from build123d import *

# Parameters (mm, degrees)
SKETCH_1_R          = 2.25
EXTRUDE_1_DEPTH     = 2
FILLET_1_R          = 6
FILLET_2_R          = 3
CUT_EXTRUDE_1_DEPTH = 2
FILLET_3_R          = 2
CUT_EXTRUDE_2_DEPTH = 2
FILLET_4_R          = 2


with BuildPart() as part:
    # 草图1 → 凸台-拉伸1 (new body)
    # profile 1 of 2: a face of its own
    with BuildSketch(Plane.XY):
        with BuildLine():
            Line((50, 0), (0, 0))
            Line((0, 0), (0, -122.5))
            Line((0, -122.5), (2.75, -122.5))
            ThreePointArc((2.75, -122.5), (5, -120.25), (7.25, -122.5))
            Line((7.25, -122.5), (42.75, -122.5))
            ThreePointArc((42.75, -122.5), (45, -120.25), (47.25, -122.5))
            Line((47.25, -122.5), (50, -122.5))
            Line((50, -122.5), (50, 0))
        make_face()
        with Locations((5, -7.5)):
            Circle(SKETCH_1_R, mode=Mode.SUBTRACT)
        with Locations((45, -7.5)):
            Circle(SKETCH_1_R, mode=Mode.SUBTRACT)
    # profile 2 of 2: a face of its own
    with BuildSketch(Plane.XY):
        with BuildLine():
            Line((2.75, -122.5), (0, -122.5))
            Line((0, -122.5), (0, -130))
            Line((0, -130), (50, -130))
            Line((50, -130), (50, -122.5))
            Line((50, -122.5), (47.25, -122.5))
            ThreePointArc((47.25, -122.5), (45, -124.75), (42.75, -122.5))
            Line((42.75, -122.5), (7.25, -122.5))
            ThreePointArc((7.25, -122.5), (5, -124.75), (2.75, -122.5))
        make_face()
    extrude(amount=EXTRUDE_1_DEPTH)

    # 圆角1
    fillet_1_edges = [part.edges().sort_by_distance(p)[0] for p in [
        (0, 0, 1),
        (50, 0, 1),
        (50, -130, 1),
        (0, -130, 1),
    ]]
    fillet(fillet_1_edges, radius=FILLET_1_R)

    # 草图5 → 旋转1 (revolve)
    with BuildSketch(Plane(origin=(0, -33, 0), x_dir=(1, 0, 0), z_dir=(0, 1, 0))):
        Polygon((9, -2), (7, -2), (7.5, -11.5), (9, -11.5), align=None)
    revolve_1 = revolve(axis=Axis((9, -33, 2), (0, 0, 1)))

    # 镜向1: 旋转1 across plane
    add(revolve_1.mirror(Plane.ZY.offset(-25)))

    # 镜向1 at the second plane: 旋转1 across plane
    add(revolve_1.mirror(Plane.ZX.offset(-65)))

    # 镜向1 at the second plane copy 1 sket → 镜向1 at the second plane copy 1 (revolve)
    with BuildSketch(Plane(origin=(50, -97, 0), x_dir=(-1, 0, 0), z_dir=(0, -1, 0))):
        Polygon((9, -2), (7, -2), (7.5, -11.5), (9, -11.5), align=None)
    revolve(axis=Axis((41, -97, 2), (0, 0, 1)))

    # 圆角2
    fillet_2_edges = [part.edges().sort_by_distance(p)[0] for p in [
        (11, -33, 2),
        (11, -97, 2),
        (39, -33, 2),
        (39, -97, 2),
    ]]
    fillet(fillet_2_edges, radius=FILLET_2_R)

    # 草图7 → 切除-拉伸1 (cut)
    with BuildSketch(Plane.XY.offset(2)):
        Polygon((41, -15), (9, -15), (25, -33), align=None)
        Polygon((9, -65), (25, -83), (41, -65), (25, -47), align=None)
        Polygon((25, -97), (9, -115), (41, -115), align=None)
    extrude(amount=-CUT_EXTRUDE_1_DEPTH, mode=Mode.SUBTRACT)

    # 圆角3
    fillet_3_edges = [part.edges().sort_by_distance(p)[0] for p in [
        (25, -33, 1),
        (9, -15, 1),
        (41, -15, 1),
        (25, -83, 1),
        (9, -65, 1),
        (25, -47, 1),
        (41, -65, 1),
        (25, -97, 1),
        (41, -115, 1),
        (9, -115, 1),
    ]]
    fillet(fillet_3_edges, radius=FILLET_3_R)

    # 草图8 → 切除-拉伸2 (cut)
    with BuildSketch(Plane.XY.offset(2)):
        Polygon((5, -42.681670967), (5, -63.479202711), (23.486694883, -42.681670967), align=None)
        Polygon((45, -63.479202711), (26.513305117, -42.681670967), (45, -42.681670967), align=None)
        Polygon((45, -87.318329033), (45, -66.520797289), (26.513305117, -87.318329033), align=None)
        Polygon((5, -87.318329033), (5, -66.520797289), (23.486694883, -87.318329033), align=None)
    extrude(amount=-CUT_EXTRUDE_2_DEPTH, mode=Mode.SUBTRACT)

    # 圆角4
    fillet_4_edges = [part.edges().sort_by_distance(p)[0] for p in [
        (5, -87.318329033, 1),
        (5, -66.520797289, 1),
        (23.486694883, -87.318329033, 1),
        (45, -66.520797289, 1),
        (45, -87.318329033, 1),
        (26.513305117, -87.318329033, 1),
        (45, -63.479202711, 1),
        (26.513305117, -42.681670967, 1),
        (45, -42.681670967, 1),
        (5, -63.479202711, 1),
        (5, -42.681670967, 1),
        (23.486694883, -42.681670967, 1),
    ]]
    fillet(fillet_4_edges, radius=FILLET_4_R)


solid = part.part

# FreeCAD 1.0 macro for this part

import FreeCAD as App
import Part
import Sketcher


def edges_at(feature, points):
    """Names of the edges that pass closest to the given points."""
    edges = feature.Shape.Edges
    near = lambda p: min(range(len(edges)), key=lambda i: edges[i].distToShape(Part.Vertex(*p))[0])
    return sorted({f"Edge{near(p) + 1}" for p in points})

doc = App.newDocument("Part")
body = doc.addObject("PartDesign::Body", "Body")

sketch1 = body.newObject("Sketcher::SketchObject", "Sketch")
sketch1.AttachmentSupport = (doc.getObject("XY_Plane"), [""])
sketch1.MapMode = "FlatFace"
sketch1.addGeometry(Part.LineSegment(App.Vector(50, 0, 0), App.Vector(0, 0, 0)), False)
sketch1.addGeometry(Part.LineSegment(App.Vector(0, 0, 0), App.Vector(0, -130, 0)), False)
sketch1.addGeometry(Part.LineSegment(App.Vector(0, -130, 0), App.Vector(50, -130, 0)), False)
sketch1.addGeometry(Part.LineSegment(App.Vector(50, -130, 0), App.Vector(50, 0, 0)), False)
sketch1.addGeometry(Part.Circle(App.Vector(45, -122.5, 0), App.Vector(0, 0, 1), 2.25), False)
sketch1.addGeometry(Part.Circle(App.Vector(5, -122.5, 0), App.Vector(0, 0, 1), 2.25), False)
sketch1.addGeometry(Part.Circle(App.Vector(5, -7.5, 0), App.Vector(0, 0, 1), 2.25), False)
sketch1.addGeometry(Part.Circle(App.Vector(45, -7.5, 0), App.Vector(0, 0, 1), 2.25), False)
sketch1.addConstraint(Sketcher.Constraint("Coincident", 0, 2, 1, 1))
sketch1.addConstraint(Sketcher.Constraint("Coincident", 1, 2, 2, 1))
sketch1.addConstraint(Sketcher.Constraint("Coincident", 2, 2, 3, 1))
sketch1.addConstraint(Sketcher.Constraint("Coincident", 3, 2, 0, 1))
sketch1.addConstraint(Sketcher.Constraint("Horizontal", 0))
sketch1.addConstraint(Sketcher.Constraint("Vertical", 1))
sketch1.addConstraint(Sketcher.Constraint("Horizontal", 2))
sketch1.addConstraint(Sketcher.Constraint("Vertical", 3))
sketch1.addConstraint(Sketcher.Constraint("Coincident", 0, 2, -1, 1))
sketch1.addConstraint(Sketcher.Constraint("Equal", 4, 5))
sketch1.addConstraint(Sketcher.Constraint("Equal", 5, 6))
sketch1.addConstraint(Sketcher.Constraint("Equal", 6, 7))
sketch1.addConstraint(Sketcher.Constraint("Horizontal", 4, 3, 5, 3))
sketch1.addConstraint(Sketcher.Constraint("Horizontal", 6, 3, 7, 3))
sketch1.addConstraint(Sketcher.Constraint("Vertical", 5, 3, 6, 3))
sketch1.addConstraint(Sketcher.Constraint("Vertical", 4, 3, 7, 3))
sketch1.addConstraint(Sketcher.Constraint("Diameter", 4, 4.5))
sketch1.addConstraint(Sketcher.Constraint("DistanceX", 0, 2, 0, 1, 50.0))
sketch1.addConstraint(Sketcher.Constraint("DistanceY", 1, 2, 1, 1, 130.0))
sketch1.addConstraint(Sketcher.Constraint("DistanceX", -1, 1, 4, 3, 45.0))
sketch1.addConstraint(Sketcher.Constraint("DistanceX", -1, 1, 5, 3, 5.0))
sketch1.addConstraint(Sketcher.Constraint("DistanceY", 5, 3, 6, 3, 115.0))
sketch1.addConstraint(Sketcher.Constraint("DistanceY", 4, 3, -1, 1, 122.5))
pad1 = body.newObject("PartDesign::Pad", "Pad")
pad1.Profile = sketch1
pad1.Length = 2
doc.recompute()

fillet = body.newObject("PartDesign::Fillet", "Fillet")
fillet.Base = (pad1, edges_at(pad1, [
    (0, 0, 1),
    (50, 0, 1),
    (50, -130, 1),
    (0, -130, 1),
]))
fillet.Radius = 6

sketch2 = body.newObject("Sketcher::SketchObject", "Sketch001")
sketch2.AttachmentSupport = (doc.getObject("XZ_Plane"), [""])
sketch2.MapMode = "FlatFace"
sketch2.AttachmentOffset = App.Placement(App.Vector(0, 0, 33), App.Rotation())
sketch2.addGeometry(Part.LineSegment(App.Vector(9, 2, 0), App.Vector(7, 2, 0)), False)
sketch2.addGeometry(Part.LineSegment(App.Vector(7, 2, 0), App.Vector(7.5, 11.5, 0)), False)
sketch2.addGeometry(Part.LineSegment(App.Vector(7.5, 11.5, 0), App.Vector(9, 11.5, 0)), False)
sketch2.addGeometry(Part.LineSegment(App.Vector(9, 11.5, 0), App.Vector(9, 2, 0)), False)
sketch2.addGeometry(Part.LineSegment(App.Vector(9, 2, 0), App.Vector(9, 11.5, 0)), True)
sketch2.addConstraint(Sketcher.Constraint("Coincident", 0, 2, 1, 1))
sketch2.addConstraint(Sketcher.Constraint("Coincident", 1, 2, 2, 1))
sketch2.addConstraint(Sketcher.Constraint("Coincident", 2, 2, 3, 1))
sketch2.addConstraint(Sketcher.Constraint("Coincident", 3, 2, 0, 1))
sketch2.addConstraint(Sketcher.Constraint("Horizontal", 0))
sketch2.addConstraint(Sketcher.Constraint("Horizontal", 2))
sketch2.addConstraint(Sketcher.Constraint("Vertical", 3))
sketch2.addConstraint(Sketcher.Constraint("Vertical", 4))
sketch2.addConstraint(Sketcher.Constraint("Coincident", 4, 1, 3, 2))
sketch2.addConstraint(Sketcher.Constraint("Horizontal", 1, 2, 4, 2))
sketch2.addConstraint(Sketcher.Constraint("DistanceX", 0, 2, 0, 1, 2.0))
sketch2.addConstraint(Sketcher.Constraint("DistanceX", 2, 1, 2, 2, 1.5))
sketch2.addConstraint(Sketcher.Constraint("DistanceY", 3, 2, 3, 1, 9.5))
sketch2.addConstraint(Sketcher.Constraint("DistanceX", -1, 1, 0, 2, 7.0))
sketch2.addConstraint(Sketcher.Constraint("DistanceY", -1, 1, 0, 2, 2.0))
revolution = body.newObject("PartDesign::Revolution", "Revolution")
revolution.Profile = sketch2
revolution.ReferenceAxis = (sketch2, ["Axis0"])
revolution.Angle = 360
doc.recompute()

datumplane = body.newObject("PartDesign::Plane", "DatumPlane")
datumplane.AttachmentSupport = (doc.getObject("YZ_Plane"), [""])
datumplane.MapMode = "FlatFace"
datumplane.AttachmentOffset = App.Placement(App.Vector(0, 0, 25), App.Rotation())
mirrored = body.newObject("PartDesign::Mirrored", "Mirrored")
mirrored.Originals = [revolution]
mirrored.MirrorPlane = (datumplane, [""])
body.Tip = mirrored
doc.recompute()

datumplane2 = body.newObject("PartDesign::Plane", "DatumPlane001")
datumplane2.AttachmentSupport = (doc.getObject("XZ_Plane"), [""])
datumplane2.MapMode = "FlatFace"
datumplane2.AttachmentOffset = App.Placement(App.Vector(0, 0, 65), App.Rotation())
mirrored2 = body.newObject("PartDesign::Mirrored", "Mirrored001")
mirrored2.Originals = [revolution]
mirrored2.MirrorPlane = (datumplane2, [""])
body.Tip = mirrored2

sketch3 = body.newObject("Sketcher::SketchObject", "Sketch002")
sketch3.AttachmentSupport = (doc.getObject("XZ_Plane"), [""])
sketch3.MapMode = "FlatFace"
sketch3.AttachmentOffset = App.Placement(App.Vector(0, 0, 97), App.Rotation())
sketch3.addGeometry(Part.LineSegment(App.Vector(41, 2, 0), App.Vector(43, 2, 0)), False)
sketch3.addGeometry(Part.LineSegment(App.Vector(43, 2, 0), App.Vector(42.5, 11.5, 0)), False)
sketch3.addGeometry(Part.LineSegment(App.Vector(42.5, 11.5, 0), App.Vector(41, 11.5, 0)), False)
sketch3.addGeometry(Part.LineSegment(App.Vector(41, 11.5, 0), App.Vector(41, 2, 0)), False)
sketch3.addGeometry(Part.LineSegment(App.Vector(41, 2, 0), App.Vector(41, 11.5, 0)), True)
sketch3.addConstraint(Sketcher.Constraint("Coincident", 0, 2, 1, 1))
sketch3.addConstraint(Sketcher.Constraint("Coincident", 1, 2, 2, 1))
sketch3.addConstraint(Sketcher.Constraint("Coincident", 2, 2, 3, 1))
sketch3.addConstraint(Sketcher.Constraint("Coincident", 3, 2, 0, 1))
sketch3.addConstraint(Sketcher.Constraint("Horizontal", 0))
sketch3.addConstraint(Sketcher.Constraint("Horizontal", 2))
sketch3.addConstraint(Sketcher.Constraint("Vertical", 3))
sketch3.addConstraint(Sketcher.Constraint("Vertical", 4))
sketch3.addConstraint(Sketcher.Constraint("Coincident", 4, 1, 3, 2))
sketch3.addConstraint(Sketcher.Constraint("Horizontal", 1, 2, 4, 2))
sketch3.addConstraint(Sketcher.Constraint("DistanceX", 0, 1, 0, 2, 2.0))
sketch3.addConstraint(Sketcher.Constraint("DistanceX", 2, 2, 2, 1, 1.5))
sketch3.addConstraint(Sketcher.Constraint("DistanceY", 3, 2, 3, 1, 9.5))
sketch3.addConstraint(Sketcher.Constraint("DistanceX", -1, 1, 0, 2, 43.0))
sketch3.addConstraint(Sketcher.Constraint("DistanceY", -1, 1, 0, 2, 2.0))
revolution2 = body.newObject("PartDesign::Revolution", "Revolution001")
revolution2.Profile = sketch3
revolution2.ReferenceAxis = (sketch3, ["Axis0"])
revolution2.Angle = 360
doc.recompute()

fillet2 = body.newObject("PartDesign::Fillet", "Fillet001")
fillet2.Base = (revolution2, edges_at(revolution2, [
    (11, -33, 2),
    (11, -97, 2),
    (39, -33, 2),
    (39, -97, 2),
]))
fillet2.Radius = 3

sketch4 = body.newObject("Sketcher::SketchObject", "Sketch003")
sketch4.AttachmentSupport = (doc.getObject("XY_Plane"), [""])
sketch4.MapMode = "FlatFace"
sketch4.AttachmentOffset = App.Placement(App.Vector(0, 0, 2), App.Rotation())
sketch4.addGeometry(Part.LineSegment(App.Vector(41, -15, 0), App.Vector(9, -15, 0)), False)
sketch4.addGeometry(Part.LineSegment(App.Vector(9, -15, 0), App.Vector(25, -33, 0)), False)
sketch4.addGeometry(Part.LineSegment(App.Vector(25, -33, 0), App.Vector(41, -15, 0)), False)
sketch4.addGeometry(Part.LineSegment(App.Vector(9, -65, 0), App.Vector(25, -83, 0)), False)
sketch4.addGeometry(Part.LineSegment(App.Vector(25, -83, 0), App.Vector(41, -65, 0)), False)
sketch4.addGeometry(Part.LineSegment(App.Vector(41, -65, 0), App.Vector(25, -47, 0)), False)
sketch4.addGeometry(Part.LineSegment(App.Vector(25, -47, 0), App.Vector(9, -65, 0)), False)
sketch4.addGeometry(Part.LineSegment(App.Vector(25, -97, 0), App.Vector(9, -115, 0)), False)
sketch4.addGeometry(Part.LineSegment(App.Vector(9, -115, 0), App.Vector(41, -115, 0)), False)
sketch4.addGeometry(Part.LineSegment(App.Vector(41, -115, 0), App.Vector(25, -97, 0)), False)
sketch4.addConstraint(Sketcher.Constraint("Coincident", 0, 2, 1, 1))
sketch4.addConstraint(Sketcher.Constraint("Coincident", 1, 2, 2, 1))
sketch4.addConstraint(Sketcher.Constraint("Coincident", 2, 2, 0, 1))
sketch4.addConstraint(Sketcher.Constraint("Coincident", 3, 2, 4, 1))
sketch4.addConstraint(Sketcher.Constraint("Coincident", 4, 2, 5, 1))
sketch4.addConstraint(Sketcher.Constraint("Coincident", 5, 2, 6, 1))
sketch4.addConstraint(Sketcher.Constraint("Coincident", 6, 2, 3, 1))
sketch4.addConstraint(Sketcher.Constraint("Coincident", 7, 2, 8, 1))
sketch4.addConstraint(Sketcher.Constraint("Coincident", 8, 2, 9, 1))
sketch4.addConstraint(Sketcher.Constraint("Coincident", 9, 2, 7, 1))
sketch4.addConstraint(Sketcher.Constraint("Horizontal", 0))
sketch4.addConstraint(Sketcher.Constraint("Horizontal", 8))
sketch4.addConstraint(Sketcher.Constraint("Parallel", 1, 3))
sketch4.addConstraint(Sketcher.Constraint("Parallel", 2, 4))
sketch4.addConstraint(Sketcher.Constraint("Parallel", 3, 5))
sketch4.addConstraint(Sketcher.Constraint("Parallel", 4, 6))
sketch4.addConstraint(Sketcher.Constraint("Parallel", 6, 7))
sketch4.addConstraint(Sketcher.Constraint("Parallel", 5, 9))
sketch4.addConstraint(Sketcher.Constraint("Horizontal", 4, 2, 6, 2))
sketch4.addConstraint(Sketcher.Constraint("Vertical", 1, 2, 3, 2))
sketch4.addConstraint(Sketcher.Constraint("Vertical", 2, 2, 4, 2))
sketch4.addConstraint(Sketcher.Constraint("Vertical", 3, 2, 5, 2))
sketch4.addConstraint(Sketcher.Constraint("Vertical", 6, 2, 7, 2))
sketch4.addConstraint(Sketcher.Constraint("Vertical", 4, 2, 8, 2))
sketch4.addConstraint(Sketcher.Constraint("DistanceX", 0, 2, 0, 1, 32.0))
sketch4.addConstraint(Sketcher.Constraint("DistanceX", -1, 1, 0, 2, 9.0))
sketch4.addConstraint(Sketcher.Constraint("DistanceY", 0, 2, -1, 1, 15.0))
sketch4.addConstraint(Sketcher.Constraint("DistanceY", 1, 2, -1, 1, 33.0))
sketch4.addConstraint(Sketcher.Constraint("DistanceY", 3, 2, -1, 1, 83.0))
sketch4.addConstraint(Sketcher.Constraint("DistanceY", 7, 2, -1, 1, 115.0))
pocket1 = body.newObject("PartDesign::Pocket", "Pocket")
pocket1.Profile = sketch4
pocket1.Length = 2
doc.recompute()

fillet3 = body.newObject("PartDesign::Fillet", "Fillet002")
fillet3.Base = (pocket1, edges_at(pocket1, [
    (25, -33, 1),
    (9, -15, 1),
    (41, -15, 1),
    (25, -83, 1),
    (9, -65, 1),
    (25, -47, 1),
    (41, -65, 1),
    (25, -97, 1),
    (41, -115, 1),
    (9, -115, 1),
]))
fillet3.Radius = 2

sketch5 = body.newObject("Sketcher::SketchObject", "Sketch004")
sketch5.AttachmentSupport = (doc.getObject("XY_Plane"), [""])
sketch5.MapMode = "FlatFace"
sketch5.AttachmentOffset = App.Placement(App.Vector(0, 0, 2), App.Rotation())
sketch5.addGeometry(Part.LineSegment(App.Vector(5, -42.681671, 0), App.Vector(5, -63.479203, 0)), False)
sketch5.addGeometry(Part.LineSegment(App.Vector(5, -63.479203, 0), App.Vector(23.486695, -42.681671, 0)), False)
sketch5.addGeometry(Part.LineSegment(App.Vector(23.486695, -42.681671, 0), App.Vector(5, -42.681671, 0)), False)
sketch5.addGeometry(Part.LineSegment(App.Vector(26.513305, -42.681671, 0), App.Vector(45, -63.479203, 0)), False)
sketch5.addGeometry(Part.LineSegment(App.Vector(45, -63.479203, 0), App.Vector(45, -42.681671, 0)), False)
sketch5.addGeometry(Part.LineSegment(App.Vector(45, -42.681671, 0), App.Vector(26.513305, -42.681671, 0)), False)
sketch5.addGeometry(Part.LineSegment(App.Vector(45, -87.318329, 0), App.Vector(45, -66.520797, 0)), False)
sketch5.addGeometry(Part.LineSegment(App.Vector(45, -66.520797, 0), App.Vector(26.513305, -87.318329, 0)), False)
sketch5.addGeometry(Part.LineSegment(App.Vector(26.513305, -87.318329, 0), App.Vector(45, -87.318329, 0)), False)
sketch5.addGeometry(Part.LineSegment(App.Vector(5, -66.520797, 0), App.Vector(5, -87.318329, 0)), False)
sketch5.addGeometry(Part.LineSegment(App.Vector(5, -87.318329, 0), App.Vector(23.486695, -87.318329, 0)), False)
sketch5.addGeometry(Part.LineSegment(App.Vector(23.486695, -87.318329, 0), App.Vector(5, -66.520797, 0)), False)
sketch5.addConstraint(Sketcher.Constraint("Coincident", 0, 2, 1, 1))
sketch5.addConstraint(Sketcher.Constraint("Coincident", 1, 2, 2, 1))
sketch5.addConstraint(Sketcher.Constraint("Coincident", 2, 2, 0, 1))
sketch5.addConstraint(Sketcher.Constraint("Coincident", 3, 2, 4, 1))
sketch5.addConstraint(Sketcher.Constraint("Coincident", 4, 2, 5, 1))
sketch5.addConstraint(Sketcher.Constraint("Coincident", 5, 2, 3, 1))
sketch5.addConstraint(Sketcher.Constraint("Coincident", 6, 2, 7, 1))
sketch5.addConstraint(Sketcher.Constraint("Coincident", 7, 2, 8, 1))
sketch5.addConstraint(Sketcher.Constraint("Coincident", 8, 2, 6, 1))
sketch5.addConstraint(Sketcher.Constraint("Coincident", 9, 2, 10, 1))
sketch5.addConstraint(Sketcher.Constraint("Coincident", 10, 2, 11, 1))
sketch5.addConstraint(Sketcher.Constraint("Coincident", 11, 2, 9, 1))
sketch5.addConstraint(Sketcher.Constraint("Vertical", 0))
sketch5.addConstraint(Sketcher.Constraint("Horizontal", 2))
sketch5.addConstraint(Sketcher.Constraint("Vertical", 4))
sketch5.addConstraint(Sketcher.Constraint("Horizontal", 5))
sketch5.addConstraint(Sketcher.Constraint("Vertical", 6))
sketch5.addConstraint(Sketcher.Constraint("Horizontal", 8))
sketch5.addConstraint(Sketcher.Constraint("Vertical", 9))
sketch5.addConstraint(Sketcher.Constraint("Horizontal", 10))
sketch5.addConstraint(Sketcher.Constraint("Parallel", 1, 7))
sketch5.addConstraint(Sketcher.Constraint("Parallel", 3, 11))
sketch5.addConstraint(Sketcher.Constraint("Horizontal", 0, 2, 3, 2))
sketch5.addConstraint(Sketcher.Constraint("Horizontal", 2, 2, 4, 2))
sketch5.addConstraint(Sketcher.Constraint("Horizontal", 8, 2, 9, 2))
sketch5.addConstraint(Sketcher.Constraint("Horizontal", 6, 2, 11, 2))
sketch5.addConstraint(Sketcher.Constraint("Vertical", 4, 2, 6, 2))
sketch5.addConstraint(Sketcher.Constraint("Vertical", 5, 2, 7, 2))
sketch5.addConstraint(Sketcher.Constraint("Vertical", 2, 2, 9, 2))
sketch5.addConstraint(Sketcher.Constraint("Vertical", 1, 2, 10, 2))
sketch5.addConstraint(Sketcher.Constraint("DistanceX", -1, 1, 0, 2, 5.0))
sketch5.addConstraint(Sketcher.Constraint("DistanceX", -1, 1, 3, 2, 45.0))
sketch5.addConstraint(Sketcher.Constraint("DistanceY", 0, 2, 0, 1, 20.797532))
sketch5.addConstraint(Sketcher.Constraint("Distance", 1, 27.826161))
sketch5.addConstraint(Sketcher.Constraint("DistanceY", 1, 2, -1, 1, 42.681671))
sketch5.addConstraint(Sketcher.Constraint("DistanceY", 7, 2, -1, 1, 87.318329))
pocket2 = body.newObject("PartDesign::Pocket", "Pocket001")
pocket2.Profile = sketch5
pocket2.Length = 2
doc.recompute()

fillet4 = body.newObject("PartDesign::Fillet", "Fillet003")
fillet4.Base = (pocket2, edges_at(pocket2, [
    (5, -87.318, 1),
    (5, -66.521, 1),
    (23.487, -87.318, 1),
    (45, -66.521, 1),
    (45, -87.318, 1),
    (26.513, -87.318, 1),
    (45, -63.479, 1),
    (26.513, -42.682, 1),
    (45, -42.682, 1),
    (5, -63.479, 1),
    (5, -42.682, 1),
    (23.487, -42.682, 1),
]))
fillet4.Radius = 2

doc.recompute()
